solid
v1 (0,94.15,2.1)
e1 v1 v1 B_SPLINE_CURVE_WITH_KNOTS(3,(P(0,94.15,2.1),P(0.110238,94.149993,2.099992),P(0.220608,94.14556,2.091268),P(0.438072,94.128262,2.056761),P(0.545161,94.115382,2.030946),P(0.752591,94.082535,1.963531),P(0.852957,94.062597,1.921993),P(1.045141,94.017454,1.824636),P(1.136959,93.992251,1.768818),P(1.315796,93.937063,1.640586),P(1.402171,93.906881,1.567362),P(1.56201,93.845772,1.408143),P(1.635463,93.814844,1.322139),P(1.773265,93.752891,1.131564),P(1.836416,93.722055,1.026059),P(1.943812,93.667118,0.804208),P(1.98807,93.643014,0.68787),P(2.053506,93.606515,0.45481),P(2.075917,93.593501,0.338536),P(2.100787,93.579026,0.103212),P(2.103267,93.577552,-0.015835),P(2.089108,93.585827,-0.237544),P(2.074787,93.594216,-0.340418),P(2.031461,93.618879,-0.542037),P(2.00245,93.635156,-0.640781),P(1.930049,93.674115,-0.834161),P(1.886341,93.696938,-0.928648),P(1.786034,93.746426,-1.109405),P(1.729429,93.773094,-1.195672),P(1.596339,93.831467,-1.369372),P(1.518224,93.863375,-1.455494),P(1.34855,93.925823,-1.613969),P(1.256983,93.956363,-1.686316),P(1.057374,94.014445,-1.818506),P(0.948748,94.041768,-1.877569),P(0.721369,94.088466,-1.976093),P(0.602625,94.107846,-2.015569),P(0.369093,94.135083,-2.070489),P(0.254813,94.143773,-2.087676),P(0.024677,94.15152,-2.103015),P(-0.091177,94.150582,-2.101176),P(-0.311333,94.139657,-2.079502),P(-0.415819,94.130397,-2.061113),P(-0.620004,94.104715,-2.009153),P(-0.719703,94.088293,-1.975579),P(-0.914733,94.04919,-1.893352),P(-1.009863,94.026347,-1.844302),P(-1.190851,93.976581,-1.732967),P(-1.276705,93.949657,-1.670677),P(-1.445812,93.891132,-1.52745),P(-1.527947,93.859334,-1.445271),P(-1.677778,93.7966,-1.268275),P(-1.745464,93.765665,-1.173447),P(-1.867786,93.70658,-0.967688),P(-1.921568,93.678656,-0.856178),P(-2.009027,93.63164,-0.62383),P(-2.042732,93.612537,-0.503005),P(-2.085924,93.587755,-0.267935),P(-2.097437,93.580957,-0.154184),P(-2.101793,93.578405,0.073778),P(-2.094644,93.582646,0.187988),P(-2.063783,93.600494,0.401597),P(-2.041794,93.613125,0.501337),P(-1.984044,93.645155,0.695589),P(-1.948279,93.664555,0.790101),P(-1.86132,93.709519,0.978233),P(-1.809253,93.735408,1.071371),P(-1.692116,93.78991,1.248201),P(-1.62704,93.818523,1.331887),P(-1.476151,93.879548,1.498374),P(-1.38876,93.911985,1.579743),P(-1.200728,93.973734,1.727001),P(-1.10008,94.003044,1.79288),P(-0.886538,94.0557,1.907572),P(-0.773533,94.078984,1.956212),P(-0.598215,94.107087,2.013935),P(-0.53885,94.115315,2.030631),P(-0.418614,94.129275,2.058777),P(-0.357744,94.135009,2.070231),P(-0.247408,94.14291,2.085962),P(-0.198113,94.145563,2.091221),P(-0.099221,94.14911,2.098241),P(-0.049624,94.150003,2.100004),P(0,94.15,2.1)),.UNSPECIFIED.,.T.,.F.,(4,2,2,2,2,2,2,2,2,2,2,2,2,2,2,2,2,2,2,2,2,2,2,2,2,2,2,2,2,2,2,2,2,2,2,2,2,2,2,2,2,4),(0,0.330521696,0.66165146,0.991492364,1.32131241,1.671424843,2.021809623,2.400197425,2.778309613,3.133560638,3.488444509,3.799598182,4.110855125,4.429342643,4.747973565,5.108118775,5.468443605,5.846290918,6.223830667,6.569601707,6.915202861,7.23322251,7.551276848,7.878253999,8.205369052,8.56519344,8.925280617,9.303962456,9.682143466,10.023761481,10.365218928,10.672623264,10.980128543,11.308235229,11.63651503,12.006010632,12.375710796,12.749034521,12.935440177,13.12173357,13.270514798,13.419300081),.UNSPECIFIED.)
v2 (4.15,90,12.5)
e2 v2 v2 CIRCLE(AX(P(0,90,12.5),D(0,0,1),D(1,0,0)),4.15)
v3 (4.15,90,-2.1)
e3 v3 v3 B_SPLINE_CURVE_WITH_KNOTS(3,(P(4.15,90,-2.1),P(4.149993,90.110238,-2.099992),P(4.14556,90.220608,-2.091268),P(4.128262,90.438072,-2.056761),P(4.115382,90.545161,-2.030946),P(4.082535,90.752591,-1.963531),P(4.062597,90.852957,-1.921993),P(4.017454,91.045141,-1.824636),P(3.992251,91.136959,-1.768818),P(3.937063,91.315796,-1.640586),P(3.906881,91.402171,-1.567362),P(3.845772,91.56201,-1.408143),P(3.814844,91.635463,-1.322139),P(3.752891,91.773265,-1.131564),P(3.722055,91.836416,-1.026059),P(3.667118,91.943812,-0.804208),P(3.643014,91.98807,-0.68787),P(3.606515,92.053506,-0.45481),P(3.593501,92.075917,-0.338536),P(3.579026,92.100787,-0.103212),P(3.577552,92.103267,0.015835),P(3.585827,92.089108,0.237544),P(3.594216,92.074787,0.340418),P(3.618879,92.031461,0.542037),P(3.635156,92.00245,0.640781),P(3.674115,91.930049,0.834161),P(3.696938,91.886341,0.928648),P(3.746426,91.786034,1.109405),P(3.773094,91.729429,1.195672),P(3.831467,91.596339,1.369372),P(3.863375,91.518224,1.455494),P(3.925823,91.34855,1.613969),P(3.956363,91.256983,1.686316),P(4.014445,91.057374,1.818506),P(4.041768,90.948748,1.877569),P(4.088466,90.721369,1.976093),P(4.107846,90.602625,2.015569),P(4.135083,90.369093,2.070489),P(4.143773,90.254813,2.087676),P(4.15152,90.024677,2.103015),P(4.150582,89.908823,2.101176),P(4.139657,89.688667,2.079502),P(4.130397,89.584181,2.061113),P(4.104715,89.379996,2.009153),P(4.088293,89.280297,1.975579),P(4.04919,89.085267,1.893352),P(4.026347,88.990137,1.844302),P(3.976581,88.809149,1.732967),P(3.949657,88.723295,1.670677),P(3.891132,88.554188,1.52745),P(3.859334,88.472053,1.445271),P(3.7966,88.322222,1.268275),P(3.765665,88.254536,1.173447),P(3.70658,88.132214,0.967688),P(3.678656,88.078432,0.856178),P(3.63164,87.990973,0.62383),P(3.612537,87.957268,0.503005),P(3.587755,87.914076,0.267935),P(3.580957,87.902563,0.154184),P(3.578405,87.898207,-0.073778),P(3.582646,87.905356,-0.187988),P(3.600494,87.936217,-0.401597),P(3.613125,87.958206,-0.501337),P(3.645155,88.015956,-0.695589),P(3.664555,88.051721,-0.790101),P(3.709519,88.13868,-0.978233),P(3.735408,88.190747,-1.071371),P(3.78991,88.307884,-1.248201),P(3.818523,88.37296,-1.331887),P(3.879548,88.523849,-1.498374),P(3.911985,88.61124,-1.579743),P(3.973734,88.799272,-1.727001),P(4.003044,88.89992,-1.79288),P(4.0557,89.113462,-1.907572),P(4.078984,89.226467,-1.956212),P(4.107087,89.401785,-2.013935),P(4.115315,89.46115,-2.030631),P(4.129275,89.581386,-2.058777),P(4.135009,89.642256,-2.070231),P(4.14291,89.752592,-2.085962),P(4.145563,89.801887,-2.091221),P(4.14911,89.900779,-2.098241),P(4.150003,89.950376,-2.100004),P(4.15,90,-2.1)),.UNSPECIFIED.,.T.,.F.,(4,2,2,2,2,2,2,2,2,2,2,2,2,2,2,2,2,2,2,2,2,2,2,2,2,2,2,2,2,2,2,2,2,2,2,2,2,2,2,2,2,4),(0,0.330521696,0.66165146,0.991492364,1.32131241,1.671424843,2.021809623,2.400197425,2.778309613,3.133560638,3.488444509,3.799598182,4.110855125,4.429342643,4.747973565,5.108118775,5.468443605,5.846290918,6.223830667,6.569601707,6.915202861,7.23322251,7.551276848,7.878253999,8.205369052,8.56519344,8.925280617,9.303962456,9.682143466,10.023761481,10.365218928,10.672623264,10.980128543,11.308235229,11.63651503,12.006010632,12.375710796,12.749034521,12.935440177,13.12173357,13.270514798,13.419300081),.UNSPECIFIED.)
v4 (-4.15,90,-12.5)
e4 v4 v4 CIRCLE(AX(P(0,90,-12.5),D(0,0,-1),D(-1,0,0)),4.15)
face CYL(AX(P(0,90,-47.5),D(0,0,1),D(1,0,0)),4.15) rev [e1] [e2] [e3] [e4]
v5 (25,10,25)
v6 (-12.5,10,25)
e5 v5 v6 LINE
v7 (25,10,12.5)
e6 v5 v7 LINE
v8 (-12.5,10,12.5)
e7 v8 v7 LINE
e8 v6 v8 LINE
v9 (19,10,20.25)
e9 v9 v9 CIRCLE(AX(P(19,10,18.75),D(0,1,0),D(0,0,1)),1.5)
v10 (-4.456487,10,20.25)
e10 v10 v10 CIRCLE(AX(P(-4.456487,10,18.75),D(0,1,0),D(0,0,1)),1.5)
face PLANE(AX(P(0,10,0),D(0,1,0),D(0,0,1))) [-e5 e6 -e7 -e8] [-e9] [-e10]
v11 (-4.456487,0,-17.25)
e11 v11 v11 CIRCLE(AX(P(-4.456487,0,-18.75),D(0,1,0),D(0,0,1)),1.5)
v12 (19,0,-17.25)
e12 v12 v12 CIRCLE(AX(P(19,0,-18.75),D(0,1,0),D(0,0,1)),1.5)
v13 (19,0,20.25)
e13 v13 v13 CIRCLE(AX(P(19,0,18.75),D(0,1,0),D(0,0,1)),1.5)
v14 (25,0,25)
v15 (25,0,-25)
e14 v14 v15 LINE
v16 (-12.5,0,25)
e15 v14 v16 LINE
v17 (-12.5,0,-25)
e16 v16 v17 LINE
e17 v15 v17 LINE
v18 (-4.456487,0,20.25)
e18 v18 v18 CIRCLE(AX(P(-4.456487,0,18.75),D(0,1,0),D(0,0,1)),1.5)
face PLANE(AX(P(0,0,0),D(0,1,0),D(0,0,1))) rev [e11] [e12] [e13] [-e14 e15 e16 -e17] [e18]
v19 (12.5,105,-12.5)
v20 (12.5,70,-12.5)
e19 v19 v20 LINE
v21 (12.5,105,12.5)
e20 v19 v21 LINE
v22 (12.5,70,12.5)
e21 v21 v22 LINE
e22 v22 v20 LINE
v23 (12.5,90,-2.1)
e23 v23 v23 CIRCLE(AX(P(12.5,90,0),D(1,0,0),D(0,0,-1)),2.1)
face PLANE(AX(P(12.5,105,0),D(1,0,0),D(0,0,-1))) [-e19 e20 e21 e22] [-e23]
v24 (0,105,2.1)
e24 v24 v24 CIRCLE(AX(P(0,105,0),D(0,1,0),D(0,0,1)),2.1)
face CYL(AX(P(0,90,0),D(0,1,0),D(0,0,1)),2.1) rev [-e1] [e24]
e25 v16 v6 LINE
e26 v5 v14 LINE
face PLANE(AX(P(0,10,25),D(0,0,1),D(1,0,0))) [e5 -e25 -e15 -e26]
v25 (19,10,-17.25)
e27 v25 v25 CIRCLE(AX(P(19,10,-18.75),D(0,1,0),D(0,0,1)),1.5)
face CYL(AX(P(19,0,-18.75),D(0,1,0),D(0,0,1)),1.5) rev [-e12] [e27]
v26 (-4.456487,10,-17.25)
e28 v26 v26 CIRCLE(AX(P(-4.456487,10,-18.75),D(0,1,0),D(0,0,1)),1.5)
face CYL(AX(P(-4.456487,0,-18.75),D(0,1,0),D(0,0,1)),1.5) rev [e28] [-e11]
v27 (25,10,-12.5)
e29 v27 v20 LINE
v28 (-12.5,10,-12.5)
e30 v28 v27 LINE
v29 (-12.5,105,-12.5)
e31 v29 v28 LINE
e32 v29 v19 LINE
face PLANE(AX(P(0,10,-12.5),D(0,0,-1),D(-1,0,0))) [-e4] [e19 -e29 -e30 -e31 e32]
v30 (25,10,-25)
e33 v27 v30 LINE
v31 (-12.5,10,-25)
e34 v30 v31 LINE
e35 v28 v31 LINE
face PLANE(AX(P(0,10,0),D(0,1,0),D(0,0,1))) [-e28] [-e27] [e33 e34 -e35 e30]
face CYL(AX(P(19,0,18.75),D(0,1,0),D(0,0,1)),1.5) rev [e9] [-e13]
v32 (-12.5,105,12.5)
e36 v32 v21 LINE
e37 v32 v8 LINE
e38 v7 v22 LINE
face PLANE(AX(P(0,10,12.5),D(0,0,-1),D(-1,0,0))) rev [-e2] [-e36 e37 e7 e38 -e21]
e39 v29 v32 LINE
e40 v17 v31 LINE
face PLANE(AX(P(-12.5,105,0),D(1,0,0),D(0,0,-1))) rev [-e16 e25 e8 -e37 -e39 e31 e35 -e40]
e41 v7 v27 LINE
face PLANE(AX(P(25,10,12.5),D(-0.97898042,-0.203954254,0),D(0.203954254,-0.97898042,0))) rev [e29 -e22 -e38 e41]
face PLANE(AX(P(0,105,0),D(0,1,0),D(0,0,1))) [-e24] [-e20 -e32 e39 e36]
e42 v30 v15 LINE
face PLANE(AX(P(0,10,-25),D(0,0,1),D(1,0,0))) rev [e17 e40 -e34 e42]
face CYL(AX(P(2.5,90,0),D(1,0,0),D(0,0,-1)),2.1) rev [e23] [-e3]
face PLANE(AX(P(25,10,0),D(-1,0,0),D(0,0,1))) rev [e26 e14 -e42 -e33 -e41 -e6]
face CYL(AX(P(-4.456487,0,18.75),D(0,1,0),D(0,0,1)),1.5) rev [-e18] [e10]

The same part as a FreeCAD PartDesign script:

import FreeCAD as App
import Part
import Sketcher

V = App.Vector

doc = App.newDocument("Part")
body = doc.addObject("PartDesign::Body", "Body")

# Sketch on XZ plane
sketch1 = body.newObject("Sketcher::SketchObject", "Sketch")
sketch1.AttachmentSupport = (doc.getObject("XZ_Plane"), [""])
sketch1.MapMode = "FlatFace"
sketch1.addGeometry([
    Part.LineSegment(V(-25, -12.5, 0), V(-25, 12.5, 0)),
    Part.LineSegment(V(-25, 12.5, 0), V(25, 12.5, 0)),
    Part.LineSegment(V(25, 12.5, 0), V(25, -12.5, 0)),
    Part.LineSegment(V(25, -12.5, 0), V(-25, -12.5, 0)),
], False)
sketch1.addConstraint([
    Sketcher.Constraint("Coincident", 0, 2, 1, 1),
    Sketcher.Constraint("Coincident", 1, 2, 2, 1),
    Sketcher.Constraint("Coincident", 2, 2, 3, 1),
    Sketcher.Constraint("Coincident", 3, 2, 0, 1),
    Sketcher.Constraint("Vertical", 0),
    Sketcher.Constraint("Horizontal", 1),
    Sketcher.Constraint("Vertical", 2),
    Sketcher.Constraint("Horizontal", 3),
    Sketcher.Constraint("Symmetric", 0, 2, 2, 2, -1, 1),
    Sketcher.Constraint("DistanceX", 1, 1, 1, 2, 50.0),
    Sketcher.Constraint("DistanceY", 0, 1, 0, 2, 25.0),
])
pad1 = body.newObject("PartDesign::Pad", "Pad")
pad1.Profile = sketch1
pad1.Length = 10
pad1.Reversed = True

# Sketch on XZ plane
sketch2 = body.newObject("Sketcher::SketchObject", "Sketch001")
sketch2.AttachmentSupport = (doc.getObject("XZ_Plane"), [""])
sketch2.MapMode = "FlatFace"
sketch2.addGeometry([
    Part.LineSegment(V(-12.5, -12.5, 0), V(-12.5, 12.5, 0)),
    Part.LineSegment(V(-12.5, 12.5, 0), V(12.5, 12.5, 0)),
    Part.LineSegment(V(12.5, 12.5, 0), V(12.5, -12.5, 0)),
    Part.LineSegment(V(12.5, -12.5, 0), V(-12.5, -12.5, 0)),
], False)
sketch2.addConstraint([
    Sketcher.Constraint("Coincident", 0, 2, 1, 1),
    Sketcher.Constraint("Coincident", 1, 2, 2, 1),
    Sketcher.Constraint("Coincident", 2, 2, 3, 1),
    Sketcher.Constraint("Coincident", 3, 2, 0, 1),
    Sketcher.Constraint("Vertical", 0),
    Sketcher.Constraint("Horizontal", 1),
    Sketcher.Constraint("Vertical", 2),
    Sketcher.Constraint("Horizontal", 3),
    Sketcher.Constraint("Symmetric", 0, 2, 2, 2, -1, 1),
    Sketcher.Constraint("Equal", 3, 0),
    Sketcher.Constraint("DistanceX", 1, 1, 1, 2, 25.0),
])
pad2 = body.newObject("PartDesign::Pad", "Pad001")
pad2.Profile = sketch2
pad2.Length = 105
pad2.Reversed = True

# Sketch on XY plane
sketch3 = body.newObject("Sketcher::SketchObject", "Sketch002")
sketch3.AttachmentSupport = (doc.getObject("XY_Plane"), [""])
sketch3.MapMode = "FlatFace"
sketch3.AttachmentOffset = App.Placement(V(0, 0, 12.5), App.Rotation())
sketch3.addGeometry(Part.Circle(V(0, 90, 0), V(0, 0, 1), 4.15), False)
sketch3.addConstraint([
    Sketcher.Constraint("PointOnObject", 0, 3, -2),
    Sketcher.Constraint("Diameter", 0, 8.3),
    Sketcher.Constraint("DistanceY", -1, 1, 0, 3, 90.0),
])
pocket1 = body.newObject("PartDesign::Pocket", "Pocket")
pocket1.Profile = sketch3
pocket1.Length = 60

# Sketch on YZ plane
sketch4 = body.newObject("Sketcher::SketchObject", "Sketch003")
sketch4.AttachmentSupport = (doc.getObject("YZ_Plane"), [""])
sketch4.MapMode = "FlatFace"
sketch4.AttachmentOffset = App.Placement(V(0, 0, 12.5), App.Rotation())
sketch4.addGeometry(Part.Circle(V(90, 0, 0), V(0, 0, 1), 2.1), False)
sketch4.addConstraint([
    Sketcher.Constraint("PointOnObject", 0, 3, -1),
    Sketcher.Constraint("Diameter", 0, 4.2),
    Sketcher.Constraint("DistanceX", -1, 1, 0, 3, 90.0),
])
pocket2 = body.newObject("PartDesign::Pocket", "Pocket001")
pocket2.Profile = sketch4
pocket2.Length = 10

# Sketch on XZ plane
sketch5 = body.newObject("Sketcher::SketchObject", "Sketch004")
sketch5.AttachmentSupport = (doc.getObject("XZ_Plane"), [""])
sketch5.MapMode = "FlatFace"
sketch5.addGeometry([
    Part.LineSegment(V(-25, -25, 0), V(-25, -12.5, 0)),  # 0
    Part.LineSegment(V(-25, -12.5, 0), V(25, -12.5, 0)),  # 1
    Part.LineSegment(V(25, -12.5, 0), V(25, -25, 0)),  # 2
    Part.LineSegment(V(25, -25, 0), V(-25, -25, 0)),  # 3
    Part.LineSegment(V(-25, 12.5, 0), V(-25, 25, 0)),  # 4
    Part.LineSegment(V(-25, 25, 0), V(25, 25, 0)),  # 5
    Part.LineSegment(V(25, 25, 0), V(25, 12.5, 0)),  # 6
    Part.LineSegment(V(25, 12.5, 0), V(-25, 12.5, 0)),  # 7
], False)
sketch5.addConstraint([
    Sketcher.Constraint("Coincident", 0, 2, 1, 1),
    Sketcher.Constraint("Coincident", 1, 2, 2, 1),
    Sketcher.Constraint("Coincident", 2, 2, 3, 1),
    Sketcher.Constraint("Coincident", 3, 2, 0, 1),
    Sketcher.Constraint("Coincident", 4, 2, 5, 1),
    Sketcher.Constraint("Coincident", 5, 2, 6, 1),
    Sketcher.Constraint("Coincident", 6, 2, 7, 1),
    Sketcher.Constraint("Coincident", 7, 2, 4, 1),
    Sketcher.Constraint("Vertical", 0),
    Sketcher.Constraint("Horizontal", 1),
    Sketcher.Constraint("Vertical", 2),
    Sketcher.Constraint("Horizontal", 3),
    Sketcher.Constraint("Vertical", 4),
    Sketcher.Constraint("Horizontal", 5),
    Sketcher.Constraint("Vertical", 6),
    Sketcher.Constraint("Horizontal", 7),
    Sketcher.Constraint("Symmetric", 2, 2, 4, 2, -1, 1),
    Sketcher.Constraint("Symmetric", 0, 2, 6, 2, -1, 1),
    Sketcher.Constraint("Vertical", 3, 2, 4, 2),
    Sketcher.Constraint("DistanceX", 1, 1, 1, 2, 50.0),
    Sketcher.Constraint("DistanceY", 0, 1, 0, 2, 12.5),
    Sketcher.Constraint("DistanceY", 2, 2, -1, 1, 25.0),
])
pad3 = body.newObject("PartDesign::Pad", "Pad002")
pad3.Profile = sketch5
pad3.Length = 10
pad3.Reversed = True

# Sketch on XZ plane
sketch6 = body.newObject("Sketcher::SketchObject", "Sketch005")
sketch6.AttachmentSupport = (doc.getObject("XZ_Plane"), [""])
sketch6.MapMode = "FlatFace"
sketch6.AttachmentOffset = App.Placement(V(0, 0, -10), App.Rotation())
sketch6.addGeometry([
    Part.Circle(V(-4.456487, -18.75, 0), V(0, 0, 1), 1.5),
    Part.Circle(V(-4.456487, 18.75, 0), V(0, 0, 1), 1.5),
], False)
sketch6.addConstraint([
    Sketcher.Constraint("Equal", 0, 1),
    Sketcher.Constraint("Symmetric", 0, 3, 1, 3, -1),
    Sketcher.Constraint("Diameter", 0, 3.0),
    Sketcher.Constraint("DistanceY", 0, 3, 1, 3, 37.5),
    Sketcher.Constraint("DistanceX", 0, 3, -1, 1, 4.456487),
])
pocket3 = body.newObject("PartDesign::Pocket", "Pocket002")
pocket3.Profile = sketch6
pocket3.Length = 10
pocket3.Reversed = True

# Sketch on XZ plane
sketch7 = body.newObject("Sketcher::SketchObject", "Sketch006")
sketch7.AttachmentSupport = (doc.getObject("XZ_Plane"), [""])
sketch7.MapMode = "FlatFace"
sketch7.AttachmentOffset = App.Placement(V(0, 0, -10), App.Rotation())
sketch7.addGeometry([
    Part.LineSegment(V(-12.5, 25, 0), V(-12.5, -25, 0)),
    Part.LineSegment(V(-12.5, -25, 0), V(-25, -25, 0)),
    Part.LineSegment(V(-25, -25, 0), V(-25, 25, 0)),
    Part.LineSegment(V(-25, 25, 0), V(-12.5, 25, 0)),
], False)
sketch7.addConstraint([
    Sketcher.Constraint("Coincident", 0, 2, 1, 1),
    Sketcher.Constraint("Coincident", 1, 2, 2, 1),
    Sketcher.Constraint("Coincident", 2, 2, 3, 1),
    Sketcher.Constraint("Coincident", 3, 2, 0, 1),
    Sketcher.Constraint("Vertical", 0),
    Sketcher.Constraint("Horizontal", 1),
    Sketcher.Constraint("Vertical", 2),
    Sketcher.Constraint("Horizontal", 3),
    Sketcher.Constraint("DistanceY", 0, 2, 0, 1, 50.0),
    Sketcher.Constraint("DistanceX", 1, 2, 1, 1, 12.5),
    Sketcher.Constraint("DistanceY", 0, 2, -1, 1, 25.0),
    Sketcher.Constraint("DistanceX", 1, 2, -1, 1, 25.0),
])
pocket4 = body.newObject("PartDesign::Pocket", "Pocket003")
pocket4.Profile = sketch7
pocket4.Length = 10
pocket4.Reversed = True

# Sketch on XZ plane
sketch8 = body.newObject("Sketcher::SketchObject", "Sketch007")
sketch8.AttachmentSupport = (doc.getObject("XZ_Plane"), [""])
sketch8.MapMode = "FlatFace"
sketch8.AttachmentOffset = App.Placement(V(0, 0, -105), App.Rotation())
sketch8.addGeometry(Part.Circle(V(0, 0, 0), V(0, 0, 1), 2.1), False)
sketch8.addConstraint([
    Sketcher.Constraint("Coincident", 0, 3, -1, 1),
    Sketcher.Constraint("Diameter", 0, 4.2),
])
pocket5 = body.newObject("PartDesign::Pocket", "Pocket004")
pocket5.Profile = sketch8
pocket5.Length = 15
pocket5.Reversed = True

# Sketch on XZ plane
sketch9 = body.newObject("Sketcher::SketchObject", "Sketch008")
sketch9.AttachmentSupport = (doc.getObject("XZ_Plane"), [""])
sketch9.MapMode = "FlatFace"
sketch9.AttachmentOffset = App.Placement(V(0, 0, -10), App.Rotation())
sketch9.addGeometry([
    Part.Circle(V(19, 18.75, 0), V(0, 0, 1), 1.5),
    Part.Circle(V(19, -18.75, 0), V(0, 0, 1), 1.5),
], False)
sketch9.addConstraint([
    Sketcher.Constraint("Equal", 0, 1),
    Sketcher.Constraint("Symmetric", 0, 3, 1, 3, -1),
    Sketcher.Constraint("Diameter", 0, 3.0),
    Sketcher.Constraint("DistanceX", -1, 1, 0, 3, 19.0),
    Sketcher.Constraint("DistanceY", 1, 3, 0, 3, 37.5),
])
pocket6 = body.newObject("PartDesign::Pocket", "Pocket005")
pocket6.Profile = sketch9
pocket6.Length = 10
pocket6.Reversed = True

# Sketch on XY plane
sketch10 = body.newObject("Sketcher::SketchObject", "Sketch009")
sketch10.AttachmentSupport = (doc.getObject("XY_Plane"), [""])
sketch10.MapMode = "FlatFace"
sketch10.addGeometry([
    Part.LineSegment(V(12.5, 10, 0), V(25, 10, 0)),
    Part.LineSegment(V(25, 10, 0), V(12.5, 70, 0)),
    Part.LineSegment(V(12.5, 70, 0), V(12.5, 10, 0)),
], False)
sketch10.addConstraint([
    Sketcher.Constraint("Coincident", 0, 2, 1, 1),
    Sketcher.Constraint("Coincident", 1, 2, 2, 1),
    Sketcher.Constraint("Coincident", 2, 2, 0, 1),
    Sketcher.Constraint("Horizontal", 0),
    Sketcher.Constraint("Vertical", 2),
    Sketcher.Constraint("DistanceY", 2, 2, 2, 1, 60.0),
    Sketcher.Constraint("DistanceX", 0, 1, 0, 2, 12.5),
    Sketcher.Constraint("DistanceX", -1, 1, 0, 2, 25.0),
    Sketcher.Constraint("DistanceY", -1, 1, 0, 2, 10.0),
])
pad4 = body.newObject("PartDesign::Pad", "Pad003")
pad4.Profile = sketch10
pad4.Length = 25
pad4.Midplane = True

doc.recompute()
